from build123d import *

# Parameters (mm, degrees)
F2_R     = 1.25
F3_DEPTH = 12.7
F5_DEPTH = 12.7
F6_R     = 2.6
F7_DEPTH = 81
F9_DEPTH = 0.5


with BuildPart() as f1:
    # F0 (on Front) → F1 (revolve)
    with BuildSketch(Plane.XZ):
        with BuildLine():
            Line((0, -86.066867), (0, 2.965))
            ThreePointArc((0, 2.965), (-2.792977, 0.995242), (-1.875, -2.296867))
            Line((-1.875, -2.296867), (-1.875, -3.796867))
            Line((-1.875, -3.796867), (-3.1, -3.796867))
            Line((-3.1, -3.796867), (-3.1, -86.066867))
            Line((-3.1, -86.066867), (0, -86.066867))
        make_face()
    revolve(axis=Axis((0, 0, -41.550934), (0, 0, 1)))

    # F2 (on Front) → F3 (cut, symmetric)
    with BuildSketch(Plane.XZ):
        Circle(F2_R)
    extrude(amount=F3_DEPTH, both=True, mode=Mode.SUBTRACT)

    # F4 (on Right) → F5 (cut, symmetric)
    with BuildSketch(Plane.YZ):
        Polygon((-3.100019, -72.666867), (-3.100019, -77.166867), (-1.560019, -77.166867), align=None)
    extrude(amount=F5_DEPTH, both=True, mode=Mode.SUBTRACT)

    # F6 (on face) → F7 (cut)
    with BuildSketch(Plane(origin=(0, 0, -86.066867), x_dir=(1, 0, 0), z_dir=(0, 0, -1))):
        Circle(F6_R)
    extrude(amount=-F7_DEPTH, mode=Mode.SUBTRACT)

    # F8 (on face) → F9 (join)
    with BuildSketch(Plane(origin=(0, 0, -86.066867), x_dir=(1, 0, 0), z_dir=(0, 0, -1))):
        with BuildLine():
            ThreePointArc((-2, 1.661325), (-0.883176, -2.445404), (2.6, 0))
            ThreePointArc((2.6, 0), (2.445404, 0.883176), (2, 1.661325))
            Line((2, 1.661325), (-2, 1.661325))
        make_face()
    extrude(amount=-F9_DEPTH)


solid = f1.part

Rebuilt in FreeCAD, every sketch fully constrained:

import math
import FreeCAD as App
import Part
import Sketcher
Q = App.Units.Quantity

doc = App.newDocument("Part")
params = doc.addObject("Spreadsheet::Sheet", "Params")
for row, (alias, value) in enumerate([
    ("sketch1_width", "3.1 mm"),
    ("sketch1_height", "1.5 mm"),
    ("sketch1_height2", "82.27 mm"),
    ("revolution_angle", "360 deg"),
    ("sketch2_diameter", "2.5 mm"),
    ("pocket1_length", "25.4 mm"),
    ("sketch3_height", "4.5 mm"),
    ("sketch3_width", "1.54 mm"),
    ("pocket2_length", "25.4 mm"),
    ("sketch4_diameter", "5.2 mm"),
    ("pocket3_length", "81 mm"),
    ("sketch5_radius", "2.6 mm"),
    ("sketch5_width", "4 mm"),
    ("pad1_length", "0.5 mm"),
], start=1):
    params.set(f"A{row}", alias)
    params.set(f"B{row}", "=" + value)
    params.setAlias(f"B{row}", alias)

body = doc.addObject("PartDesign::Body", "Body")

# Sketch on XZ plane
sketch1 = body.newObject("Sketcher::SketchObject", "Sketch")
sketch1.AttachmentSupport = (doc.getObject("XZ_Plane"), [""])
sketch1.MapMode = "FlatFace"
sketch1.addGeometry(Part.LineSegment(App.Vector(0, -86.1, 0), App.Vector(0, 3, 0)), False)
sketch1.addGeometry(Part.ArcOfCircle(Part.Circle(App.Vector(0, 0, 0), App.Vector(0, 0, 1), 3), math.radians(90), math.radians(231)), False)
sketch1.addGeometry(Part.LineSegment(App.Vector(-1.9, -2.3, 0), App.Vector(-1.9, -3.8, 0)), False)
sketch1.addGeometry(Part.LineSegment(App.Vector(-1.9, -3.8, 0), App.Vector(-3.1, -3.8, 0)), False)
sketch1.addGeometry(Part.LineSegment(App.Vector(-3.1, -3.8, 0), App.Vector(-3.1, -86.1, 0)), False)
sketch1.addGeometry(Part.LineSegment(App.Vector(-3.1, -86.1, 0), App.Vector(0, -86.1, 0)), False)
sketch1.addConstraint(Sketcher.Constraint("Coincident", 0, 2, 1, 1))
sketch1.addConstraint(Sketcher.Constraint("Coincident", 1, 2, 2, 1))
sketch1.addConstraint(Sketcher.Constraint("Coincident", 2, 2, 3, 1))
sketch1.addConstraint(Sketcher.Constraint("Coincident", 3, 2, 4, 1))
sketch1.addConstraint(Sketcher.Constraint("Coincident", 4, 2, 5, 1))
sketch1.addConstraint(Sketcher.Constraint("Coincident", 5, 2, 0, 1))
sketch1.addConstraint(Sketcher.Constraint("Vertical", 0))
sketch1.addConstraint(Sketcher.Constraint("Vertical", 2))
sketch1.addConstraint(Sketcher.Constraint("Horizontal", 3))
sketch1.addConstraint(Sketcher.Constraint("Vertical", 4))
sketch1.addConstraint(Sketcher.Constraint("Horizontal", 5))
sketch1.addConstraint(Sketcher.Constraint("Coincident", 1, 3, -1, 1))
sketch1.addConstraint(Sketcher.Constraint("PointOnObject", 0, 2, -2))
sketch1.addConstraint(Sketcher.Constraint("DistanceX", 5, 1, 5, 2, Q("3.1 mm")))
sketch1.addConstraint(Sketcher.Constraint("DistanceY", 2, 2, 2, 1, Q("1.5 mm")))
sketch1.addConstraint(Sketcher.Constraint("Radius", 1, Q("2.965 mm")))
sketch1.addConstraint(Sketcher.Constraint("DistanceY", 4, 2, 4, 1, Q("82.27 mm")))
sketch1.addConstraint(Sketcher.Constraint("DistanceX", 3, 2, 3, 1, Q("1.225 mm")))
sketch1.setExpression("Constraints[13]", "Params.sketch1_width")
sketch1.setExpression("Constraints[14]", "Params.sketch1_height")
sketch1.setExpression("Constraints[16]", "Params.sketch1_height2")
revolution = body.newObject("PartDesign::Revolution", "Revolution")
revolution.Profile = sketch1
revolution.ReferenceAxis = (sketch1, ["V_Axis"])
revolution.setExpression("Angle", "Params.revolution_angle")

# Sketch on XZ plane
sketch2 = body.newObject("Sketcher::SketchObject", "Sketch001")
sketch2.AttachmentSupport = (doc.getObject("XZ_Plane"), [""])
sketch2.MapMode = "FlatFace"
sketch2.addGeometry(Part.Circle(App.Vector(0, 0, 0), App.Vector(0, 0, 1), 1.2), False)
sketch2.addConstraint(Sketcher.Constraint("Coincident", 0, 3, -1, 1))
sketch2.addConstraint(Sketcher.Constraint("Diameter", 0, Q("2.5 mm")))
sketch2.setExpression("Constraints[1]", "Params.sketch2_diameter")
pocket1 = body.newObject("PartDesign::Pocket", "Pocket")
pocket1.Profile = sketch2
pocket1.setExpression("Length", "Params.pocket1_length")
pocket1.Midplane = True

# Sketch on YZ plane
sketch3 = body.newObject("Sketcher::SketchObject", "Sketch002")
sketch3.AttachmentSupport = (doc.getObject("YZ_Plane"), [""])
sketch3.MapMode = "FlatFace"
sketch3.addGeometry(Part.LineSegment(App.Vector(-3.1, -72.7, 0), App.Vector(-3.1, -77.2, 0)), False)
sketch3.addGeometry(Part.LineSegment(App.Vector(-3.1, -77.2, 0), App.Vector(-1.6, -77.2, 0)), False)
sketch3.addGeometry(Part.LineSegment(App.Vector(-1.6, -77.2, 0), App.Vector(-3.1, -72.7, 0)), False)
sketch3.addConstraint(Sketcher.Constraint("Coincident", 0, 2, 1, 1))
sketch3.addConstraint(Sketcher.Constraint("Coincident", 1, 2, 2, 1))
sketch3.addConstraint(Sketcher.Constraint("Coincident", 2, 2, 0, 1))
sketch3.addConstraint(Sketcher.Constraint("Vertical", 0))
sketch3.addConstraint(Sketcher.Constraint("Horizontal", 1))
sketch3.addConstraint(Sketcher.Constraint("DistanceY", 0, 2, 0, 1, Q("4.5 mm")))
sketch3.addConstraint(Sketcher.Constraint("DistanceX", 1, 1, 1, 2, Q("1.54 mm")))
sketch3.addConstraint(Sketcher.Constraint("DistanceX", 0, 2, -1, 1, Q("3.100019 mm")))
sketch3.addConstraint(Sketcher.Constraint("DistanceY", 0, 2, -1, 1, Q("77.166867 mm")))
sketch3.setExpression("Constraints[5]", "Params.sketch3_height")
sketch3.setExpression("Constraints[6]", "Params.sketch3_width")
pocket2 = body.newObject("PartDesign::Pocket", "Pocket001")
pocket2.Profile = sketch3
pocket2.setExpression("Length", "Params.pocket2_length")
pocket2.Midplane = True

# Sketch on XY plane
sketch4 = body.newObject("Sketcher::SketchObject", "Sketch003")
sketch4.AttachmentSupport = (doc.getObject("XY_Plane"), [""])
sketch4.MapMode = "FlatFace"
sketch4.AttachmentOffset = App.Placement(App.Vector(0, 0, -86.066867), App.Rotation())
sketch4.addGeometry(Part.Circle(App.Vector(0, 0, 0), App.Vector(0, 0, 1), 2.6), False)
sketch4.addConstraint(Sketcher.Constraint("Coincident", 0, 3, -1, 1))
sketch4.addConstraint(Sketcher.Constraint("Diameter", 0, Q("5.2 mm")))
sketch4.setExpression("Constraints[1]", "Params.sketch4_diameter")
pocket3 = body.newObject("PartDesign::Pocket", "Pocket002")
pocket3.Profile = sketch4
pocket3.setExpression("Length", "Params.pocket3_length")
pocket3.Reversed = True

# Sketch on XY plane
sketch5 = body.newObject("Sketcher::SketchObject", "Sketch004")
sketch5.AttachmentSupport = (doc.getObject("XY_Plane"), [""])
sketch5.MapMode = "FlatFace"
sketch5.AttachmentOffset = App.Placement(App.Vector(0, 0, -86.066867), App.Rotation())
sketch5.addGeometry(Part.ArcOfCircle(Part.Circle(App.Vector(0, 0, 0), App.Vector(0, 0, 1), 2.6), math.radians(0), math.radians(220)), False)
sketch5.addGeometry(Part.ArcOfCircle(Part.Circle(App.Vector(0, 0, 0), App.Vector(0, 0, 1), 2.6), math.radians(-40), math.radians(0)), False)
sketch5.addGeometry(Part.LineSegment(App.Vector(2, -1.7, 0), App.Vector(-2, -1.7, 0)), False)
sketch5.addConstraint(Sketcher.Constraint("Tangent", 0, 1, 1, 2))
sketch5.addConstraint(Sketcher.Constraint("Coincident", 1, 1, 2, 1))
sketch5.addConstraint(Sketcher.Constraint("Coincident", 2, 2, 0, 2))
sketch5.addConstraint(Sketcher.Constraint("Horizontal", 2))
sketch5.addConstraint(Sketcher.Constraint("Coincident", 0, 3, -1, 1))
sketch5.addConstraint(Sketcher.Constraint("Equal", 0, 1))
sketch5.addConstraint(Sketcher.Constraint("PointOnObject", 0, 1, -1))
sketch5.addConstraint(Sketcher.Constraint("Radius", 0, Q("2.6 mm")))
sketch5.addConstraint(Sketcher.Constraint("DistanceX", 2, 2, 2, 1, Q("4 mm")))
sketch5.setExpression("Constraints[7]", "Params.sketch5_radius")
sketch5.setExpression("Constraints[8]", "Params.sketch5_width")
pad1 = body.newObject("PartDesign::Pad", "Pad")
pad1.Profile = sketch5
pad1.setExpression("Length", "Params.pad1_length")

doc.recompute()
